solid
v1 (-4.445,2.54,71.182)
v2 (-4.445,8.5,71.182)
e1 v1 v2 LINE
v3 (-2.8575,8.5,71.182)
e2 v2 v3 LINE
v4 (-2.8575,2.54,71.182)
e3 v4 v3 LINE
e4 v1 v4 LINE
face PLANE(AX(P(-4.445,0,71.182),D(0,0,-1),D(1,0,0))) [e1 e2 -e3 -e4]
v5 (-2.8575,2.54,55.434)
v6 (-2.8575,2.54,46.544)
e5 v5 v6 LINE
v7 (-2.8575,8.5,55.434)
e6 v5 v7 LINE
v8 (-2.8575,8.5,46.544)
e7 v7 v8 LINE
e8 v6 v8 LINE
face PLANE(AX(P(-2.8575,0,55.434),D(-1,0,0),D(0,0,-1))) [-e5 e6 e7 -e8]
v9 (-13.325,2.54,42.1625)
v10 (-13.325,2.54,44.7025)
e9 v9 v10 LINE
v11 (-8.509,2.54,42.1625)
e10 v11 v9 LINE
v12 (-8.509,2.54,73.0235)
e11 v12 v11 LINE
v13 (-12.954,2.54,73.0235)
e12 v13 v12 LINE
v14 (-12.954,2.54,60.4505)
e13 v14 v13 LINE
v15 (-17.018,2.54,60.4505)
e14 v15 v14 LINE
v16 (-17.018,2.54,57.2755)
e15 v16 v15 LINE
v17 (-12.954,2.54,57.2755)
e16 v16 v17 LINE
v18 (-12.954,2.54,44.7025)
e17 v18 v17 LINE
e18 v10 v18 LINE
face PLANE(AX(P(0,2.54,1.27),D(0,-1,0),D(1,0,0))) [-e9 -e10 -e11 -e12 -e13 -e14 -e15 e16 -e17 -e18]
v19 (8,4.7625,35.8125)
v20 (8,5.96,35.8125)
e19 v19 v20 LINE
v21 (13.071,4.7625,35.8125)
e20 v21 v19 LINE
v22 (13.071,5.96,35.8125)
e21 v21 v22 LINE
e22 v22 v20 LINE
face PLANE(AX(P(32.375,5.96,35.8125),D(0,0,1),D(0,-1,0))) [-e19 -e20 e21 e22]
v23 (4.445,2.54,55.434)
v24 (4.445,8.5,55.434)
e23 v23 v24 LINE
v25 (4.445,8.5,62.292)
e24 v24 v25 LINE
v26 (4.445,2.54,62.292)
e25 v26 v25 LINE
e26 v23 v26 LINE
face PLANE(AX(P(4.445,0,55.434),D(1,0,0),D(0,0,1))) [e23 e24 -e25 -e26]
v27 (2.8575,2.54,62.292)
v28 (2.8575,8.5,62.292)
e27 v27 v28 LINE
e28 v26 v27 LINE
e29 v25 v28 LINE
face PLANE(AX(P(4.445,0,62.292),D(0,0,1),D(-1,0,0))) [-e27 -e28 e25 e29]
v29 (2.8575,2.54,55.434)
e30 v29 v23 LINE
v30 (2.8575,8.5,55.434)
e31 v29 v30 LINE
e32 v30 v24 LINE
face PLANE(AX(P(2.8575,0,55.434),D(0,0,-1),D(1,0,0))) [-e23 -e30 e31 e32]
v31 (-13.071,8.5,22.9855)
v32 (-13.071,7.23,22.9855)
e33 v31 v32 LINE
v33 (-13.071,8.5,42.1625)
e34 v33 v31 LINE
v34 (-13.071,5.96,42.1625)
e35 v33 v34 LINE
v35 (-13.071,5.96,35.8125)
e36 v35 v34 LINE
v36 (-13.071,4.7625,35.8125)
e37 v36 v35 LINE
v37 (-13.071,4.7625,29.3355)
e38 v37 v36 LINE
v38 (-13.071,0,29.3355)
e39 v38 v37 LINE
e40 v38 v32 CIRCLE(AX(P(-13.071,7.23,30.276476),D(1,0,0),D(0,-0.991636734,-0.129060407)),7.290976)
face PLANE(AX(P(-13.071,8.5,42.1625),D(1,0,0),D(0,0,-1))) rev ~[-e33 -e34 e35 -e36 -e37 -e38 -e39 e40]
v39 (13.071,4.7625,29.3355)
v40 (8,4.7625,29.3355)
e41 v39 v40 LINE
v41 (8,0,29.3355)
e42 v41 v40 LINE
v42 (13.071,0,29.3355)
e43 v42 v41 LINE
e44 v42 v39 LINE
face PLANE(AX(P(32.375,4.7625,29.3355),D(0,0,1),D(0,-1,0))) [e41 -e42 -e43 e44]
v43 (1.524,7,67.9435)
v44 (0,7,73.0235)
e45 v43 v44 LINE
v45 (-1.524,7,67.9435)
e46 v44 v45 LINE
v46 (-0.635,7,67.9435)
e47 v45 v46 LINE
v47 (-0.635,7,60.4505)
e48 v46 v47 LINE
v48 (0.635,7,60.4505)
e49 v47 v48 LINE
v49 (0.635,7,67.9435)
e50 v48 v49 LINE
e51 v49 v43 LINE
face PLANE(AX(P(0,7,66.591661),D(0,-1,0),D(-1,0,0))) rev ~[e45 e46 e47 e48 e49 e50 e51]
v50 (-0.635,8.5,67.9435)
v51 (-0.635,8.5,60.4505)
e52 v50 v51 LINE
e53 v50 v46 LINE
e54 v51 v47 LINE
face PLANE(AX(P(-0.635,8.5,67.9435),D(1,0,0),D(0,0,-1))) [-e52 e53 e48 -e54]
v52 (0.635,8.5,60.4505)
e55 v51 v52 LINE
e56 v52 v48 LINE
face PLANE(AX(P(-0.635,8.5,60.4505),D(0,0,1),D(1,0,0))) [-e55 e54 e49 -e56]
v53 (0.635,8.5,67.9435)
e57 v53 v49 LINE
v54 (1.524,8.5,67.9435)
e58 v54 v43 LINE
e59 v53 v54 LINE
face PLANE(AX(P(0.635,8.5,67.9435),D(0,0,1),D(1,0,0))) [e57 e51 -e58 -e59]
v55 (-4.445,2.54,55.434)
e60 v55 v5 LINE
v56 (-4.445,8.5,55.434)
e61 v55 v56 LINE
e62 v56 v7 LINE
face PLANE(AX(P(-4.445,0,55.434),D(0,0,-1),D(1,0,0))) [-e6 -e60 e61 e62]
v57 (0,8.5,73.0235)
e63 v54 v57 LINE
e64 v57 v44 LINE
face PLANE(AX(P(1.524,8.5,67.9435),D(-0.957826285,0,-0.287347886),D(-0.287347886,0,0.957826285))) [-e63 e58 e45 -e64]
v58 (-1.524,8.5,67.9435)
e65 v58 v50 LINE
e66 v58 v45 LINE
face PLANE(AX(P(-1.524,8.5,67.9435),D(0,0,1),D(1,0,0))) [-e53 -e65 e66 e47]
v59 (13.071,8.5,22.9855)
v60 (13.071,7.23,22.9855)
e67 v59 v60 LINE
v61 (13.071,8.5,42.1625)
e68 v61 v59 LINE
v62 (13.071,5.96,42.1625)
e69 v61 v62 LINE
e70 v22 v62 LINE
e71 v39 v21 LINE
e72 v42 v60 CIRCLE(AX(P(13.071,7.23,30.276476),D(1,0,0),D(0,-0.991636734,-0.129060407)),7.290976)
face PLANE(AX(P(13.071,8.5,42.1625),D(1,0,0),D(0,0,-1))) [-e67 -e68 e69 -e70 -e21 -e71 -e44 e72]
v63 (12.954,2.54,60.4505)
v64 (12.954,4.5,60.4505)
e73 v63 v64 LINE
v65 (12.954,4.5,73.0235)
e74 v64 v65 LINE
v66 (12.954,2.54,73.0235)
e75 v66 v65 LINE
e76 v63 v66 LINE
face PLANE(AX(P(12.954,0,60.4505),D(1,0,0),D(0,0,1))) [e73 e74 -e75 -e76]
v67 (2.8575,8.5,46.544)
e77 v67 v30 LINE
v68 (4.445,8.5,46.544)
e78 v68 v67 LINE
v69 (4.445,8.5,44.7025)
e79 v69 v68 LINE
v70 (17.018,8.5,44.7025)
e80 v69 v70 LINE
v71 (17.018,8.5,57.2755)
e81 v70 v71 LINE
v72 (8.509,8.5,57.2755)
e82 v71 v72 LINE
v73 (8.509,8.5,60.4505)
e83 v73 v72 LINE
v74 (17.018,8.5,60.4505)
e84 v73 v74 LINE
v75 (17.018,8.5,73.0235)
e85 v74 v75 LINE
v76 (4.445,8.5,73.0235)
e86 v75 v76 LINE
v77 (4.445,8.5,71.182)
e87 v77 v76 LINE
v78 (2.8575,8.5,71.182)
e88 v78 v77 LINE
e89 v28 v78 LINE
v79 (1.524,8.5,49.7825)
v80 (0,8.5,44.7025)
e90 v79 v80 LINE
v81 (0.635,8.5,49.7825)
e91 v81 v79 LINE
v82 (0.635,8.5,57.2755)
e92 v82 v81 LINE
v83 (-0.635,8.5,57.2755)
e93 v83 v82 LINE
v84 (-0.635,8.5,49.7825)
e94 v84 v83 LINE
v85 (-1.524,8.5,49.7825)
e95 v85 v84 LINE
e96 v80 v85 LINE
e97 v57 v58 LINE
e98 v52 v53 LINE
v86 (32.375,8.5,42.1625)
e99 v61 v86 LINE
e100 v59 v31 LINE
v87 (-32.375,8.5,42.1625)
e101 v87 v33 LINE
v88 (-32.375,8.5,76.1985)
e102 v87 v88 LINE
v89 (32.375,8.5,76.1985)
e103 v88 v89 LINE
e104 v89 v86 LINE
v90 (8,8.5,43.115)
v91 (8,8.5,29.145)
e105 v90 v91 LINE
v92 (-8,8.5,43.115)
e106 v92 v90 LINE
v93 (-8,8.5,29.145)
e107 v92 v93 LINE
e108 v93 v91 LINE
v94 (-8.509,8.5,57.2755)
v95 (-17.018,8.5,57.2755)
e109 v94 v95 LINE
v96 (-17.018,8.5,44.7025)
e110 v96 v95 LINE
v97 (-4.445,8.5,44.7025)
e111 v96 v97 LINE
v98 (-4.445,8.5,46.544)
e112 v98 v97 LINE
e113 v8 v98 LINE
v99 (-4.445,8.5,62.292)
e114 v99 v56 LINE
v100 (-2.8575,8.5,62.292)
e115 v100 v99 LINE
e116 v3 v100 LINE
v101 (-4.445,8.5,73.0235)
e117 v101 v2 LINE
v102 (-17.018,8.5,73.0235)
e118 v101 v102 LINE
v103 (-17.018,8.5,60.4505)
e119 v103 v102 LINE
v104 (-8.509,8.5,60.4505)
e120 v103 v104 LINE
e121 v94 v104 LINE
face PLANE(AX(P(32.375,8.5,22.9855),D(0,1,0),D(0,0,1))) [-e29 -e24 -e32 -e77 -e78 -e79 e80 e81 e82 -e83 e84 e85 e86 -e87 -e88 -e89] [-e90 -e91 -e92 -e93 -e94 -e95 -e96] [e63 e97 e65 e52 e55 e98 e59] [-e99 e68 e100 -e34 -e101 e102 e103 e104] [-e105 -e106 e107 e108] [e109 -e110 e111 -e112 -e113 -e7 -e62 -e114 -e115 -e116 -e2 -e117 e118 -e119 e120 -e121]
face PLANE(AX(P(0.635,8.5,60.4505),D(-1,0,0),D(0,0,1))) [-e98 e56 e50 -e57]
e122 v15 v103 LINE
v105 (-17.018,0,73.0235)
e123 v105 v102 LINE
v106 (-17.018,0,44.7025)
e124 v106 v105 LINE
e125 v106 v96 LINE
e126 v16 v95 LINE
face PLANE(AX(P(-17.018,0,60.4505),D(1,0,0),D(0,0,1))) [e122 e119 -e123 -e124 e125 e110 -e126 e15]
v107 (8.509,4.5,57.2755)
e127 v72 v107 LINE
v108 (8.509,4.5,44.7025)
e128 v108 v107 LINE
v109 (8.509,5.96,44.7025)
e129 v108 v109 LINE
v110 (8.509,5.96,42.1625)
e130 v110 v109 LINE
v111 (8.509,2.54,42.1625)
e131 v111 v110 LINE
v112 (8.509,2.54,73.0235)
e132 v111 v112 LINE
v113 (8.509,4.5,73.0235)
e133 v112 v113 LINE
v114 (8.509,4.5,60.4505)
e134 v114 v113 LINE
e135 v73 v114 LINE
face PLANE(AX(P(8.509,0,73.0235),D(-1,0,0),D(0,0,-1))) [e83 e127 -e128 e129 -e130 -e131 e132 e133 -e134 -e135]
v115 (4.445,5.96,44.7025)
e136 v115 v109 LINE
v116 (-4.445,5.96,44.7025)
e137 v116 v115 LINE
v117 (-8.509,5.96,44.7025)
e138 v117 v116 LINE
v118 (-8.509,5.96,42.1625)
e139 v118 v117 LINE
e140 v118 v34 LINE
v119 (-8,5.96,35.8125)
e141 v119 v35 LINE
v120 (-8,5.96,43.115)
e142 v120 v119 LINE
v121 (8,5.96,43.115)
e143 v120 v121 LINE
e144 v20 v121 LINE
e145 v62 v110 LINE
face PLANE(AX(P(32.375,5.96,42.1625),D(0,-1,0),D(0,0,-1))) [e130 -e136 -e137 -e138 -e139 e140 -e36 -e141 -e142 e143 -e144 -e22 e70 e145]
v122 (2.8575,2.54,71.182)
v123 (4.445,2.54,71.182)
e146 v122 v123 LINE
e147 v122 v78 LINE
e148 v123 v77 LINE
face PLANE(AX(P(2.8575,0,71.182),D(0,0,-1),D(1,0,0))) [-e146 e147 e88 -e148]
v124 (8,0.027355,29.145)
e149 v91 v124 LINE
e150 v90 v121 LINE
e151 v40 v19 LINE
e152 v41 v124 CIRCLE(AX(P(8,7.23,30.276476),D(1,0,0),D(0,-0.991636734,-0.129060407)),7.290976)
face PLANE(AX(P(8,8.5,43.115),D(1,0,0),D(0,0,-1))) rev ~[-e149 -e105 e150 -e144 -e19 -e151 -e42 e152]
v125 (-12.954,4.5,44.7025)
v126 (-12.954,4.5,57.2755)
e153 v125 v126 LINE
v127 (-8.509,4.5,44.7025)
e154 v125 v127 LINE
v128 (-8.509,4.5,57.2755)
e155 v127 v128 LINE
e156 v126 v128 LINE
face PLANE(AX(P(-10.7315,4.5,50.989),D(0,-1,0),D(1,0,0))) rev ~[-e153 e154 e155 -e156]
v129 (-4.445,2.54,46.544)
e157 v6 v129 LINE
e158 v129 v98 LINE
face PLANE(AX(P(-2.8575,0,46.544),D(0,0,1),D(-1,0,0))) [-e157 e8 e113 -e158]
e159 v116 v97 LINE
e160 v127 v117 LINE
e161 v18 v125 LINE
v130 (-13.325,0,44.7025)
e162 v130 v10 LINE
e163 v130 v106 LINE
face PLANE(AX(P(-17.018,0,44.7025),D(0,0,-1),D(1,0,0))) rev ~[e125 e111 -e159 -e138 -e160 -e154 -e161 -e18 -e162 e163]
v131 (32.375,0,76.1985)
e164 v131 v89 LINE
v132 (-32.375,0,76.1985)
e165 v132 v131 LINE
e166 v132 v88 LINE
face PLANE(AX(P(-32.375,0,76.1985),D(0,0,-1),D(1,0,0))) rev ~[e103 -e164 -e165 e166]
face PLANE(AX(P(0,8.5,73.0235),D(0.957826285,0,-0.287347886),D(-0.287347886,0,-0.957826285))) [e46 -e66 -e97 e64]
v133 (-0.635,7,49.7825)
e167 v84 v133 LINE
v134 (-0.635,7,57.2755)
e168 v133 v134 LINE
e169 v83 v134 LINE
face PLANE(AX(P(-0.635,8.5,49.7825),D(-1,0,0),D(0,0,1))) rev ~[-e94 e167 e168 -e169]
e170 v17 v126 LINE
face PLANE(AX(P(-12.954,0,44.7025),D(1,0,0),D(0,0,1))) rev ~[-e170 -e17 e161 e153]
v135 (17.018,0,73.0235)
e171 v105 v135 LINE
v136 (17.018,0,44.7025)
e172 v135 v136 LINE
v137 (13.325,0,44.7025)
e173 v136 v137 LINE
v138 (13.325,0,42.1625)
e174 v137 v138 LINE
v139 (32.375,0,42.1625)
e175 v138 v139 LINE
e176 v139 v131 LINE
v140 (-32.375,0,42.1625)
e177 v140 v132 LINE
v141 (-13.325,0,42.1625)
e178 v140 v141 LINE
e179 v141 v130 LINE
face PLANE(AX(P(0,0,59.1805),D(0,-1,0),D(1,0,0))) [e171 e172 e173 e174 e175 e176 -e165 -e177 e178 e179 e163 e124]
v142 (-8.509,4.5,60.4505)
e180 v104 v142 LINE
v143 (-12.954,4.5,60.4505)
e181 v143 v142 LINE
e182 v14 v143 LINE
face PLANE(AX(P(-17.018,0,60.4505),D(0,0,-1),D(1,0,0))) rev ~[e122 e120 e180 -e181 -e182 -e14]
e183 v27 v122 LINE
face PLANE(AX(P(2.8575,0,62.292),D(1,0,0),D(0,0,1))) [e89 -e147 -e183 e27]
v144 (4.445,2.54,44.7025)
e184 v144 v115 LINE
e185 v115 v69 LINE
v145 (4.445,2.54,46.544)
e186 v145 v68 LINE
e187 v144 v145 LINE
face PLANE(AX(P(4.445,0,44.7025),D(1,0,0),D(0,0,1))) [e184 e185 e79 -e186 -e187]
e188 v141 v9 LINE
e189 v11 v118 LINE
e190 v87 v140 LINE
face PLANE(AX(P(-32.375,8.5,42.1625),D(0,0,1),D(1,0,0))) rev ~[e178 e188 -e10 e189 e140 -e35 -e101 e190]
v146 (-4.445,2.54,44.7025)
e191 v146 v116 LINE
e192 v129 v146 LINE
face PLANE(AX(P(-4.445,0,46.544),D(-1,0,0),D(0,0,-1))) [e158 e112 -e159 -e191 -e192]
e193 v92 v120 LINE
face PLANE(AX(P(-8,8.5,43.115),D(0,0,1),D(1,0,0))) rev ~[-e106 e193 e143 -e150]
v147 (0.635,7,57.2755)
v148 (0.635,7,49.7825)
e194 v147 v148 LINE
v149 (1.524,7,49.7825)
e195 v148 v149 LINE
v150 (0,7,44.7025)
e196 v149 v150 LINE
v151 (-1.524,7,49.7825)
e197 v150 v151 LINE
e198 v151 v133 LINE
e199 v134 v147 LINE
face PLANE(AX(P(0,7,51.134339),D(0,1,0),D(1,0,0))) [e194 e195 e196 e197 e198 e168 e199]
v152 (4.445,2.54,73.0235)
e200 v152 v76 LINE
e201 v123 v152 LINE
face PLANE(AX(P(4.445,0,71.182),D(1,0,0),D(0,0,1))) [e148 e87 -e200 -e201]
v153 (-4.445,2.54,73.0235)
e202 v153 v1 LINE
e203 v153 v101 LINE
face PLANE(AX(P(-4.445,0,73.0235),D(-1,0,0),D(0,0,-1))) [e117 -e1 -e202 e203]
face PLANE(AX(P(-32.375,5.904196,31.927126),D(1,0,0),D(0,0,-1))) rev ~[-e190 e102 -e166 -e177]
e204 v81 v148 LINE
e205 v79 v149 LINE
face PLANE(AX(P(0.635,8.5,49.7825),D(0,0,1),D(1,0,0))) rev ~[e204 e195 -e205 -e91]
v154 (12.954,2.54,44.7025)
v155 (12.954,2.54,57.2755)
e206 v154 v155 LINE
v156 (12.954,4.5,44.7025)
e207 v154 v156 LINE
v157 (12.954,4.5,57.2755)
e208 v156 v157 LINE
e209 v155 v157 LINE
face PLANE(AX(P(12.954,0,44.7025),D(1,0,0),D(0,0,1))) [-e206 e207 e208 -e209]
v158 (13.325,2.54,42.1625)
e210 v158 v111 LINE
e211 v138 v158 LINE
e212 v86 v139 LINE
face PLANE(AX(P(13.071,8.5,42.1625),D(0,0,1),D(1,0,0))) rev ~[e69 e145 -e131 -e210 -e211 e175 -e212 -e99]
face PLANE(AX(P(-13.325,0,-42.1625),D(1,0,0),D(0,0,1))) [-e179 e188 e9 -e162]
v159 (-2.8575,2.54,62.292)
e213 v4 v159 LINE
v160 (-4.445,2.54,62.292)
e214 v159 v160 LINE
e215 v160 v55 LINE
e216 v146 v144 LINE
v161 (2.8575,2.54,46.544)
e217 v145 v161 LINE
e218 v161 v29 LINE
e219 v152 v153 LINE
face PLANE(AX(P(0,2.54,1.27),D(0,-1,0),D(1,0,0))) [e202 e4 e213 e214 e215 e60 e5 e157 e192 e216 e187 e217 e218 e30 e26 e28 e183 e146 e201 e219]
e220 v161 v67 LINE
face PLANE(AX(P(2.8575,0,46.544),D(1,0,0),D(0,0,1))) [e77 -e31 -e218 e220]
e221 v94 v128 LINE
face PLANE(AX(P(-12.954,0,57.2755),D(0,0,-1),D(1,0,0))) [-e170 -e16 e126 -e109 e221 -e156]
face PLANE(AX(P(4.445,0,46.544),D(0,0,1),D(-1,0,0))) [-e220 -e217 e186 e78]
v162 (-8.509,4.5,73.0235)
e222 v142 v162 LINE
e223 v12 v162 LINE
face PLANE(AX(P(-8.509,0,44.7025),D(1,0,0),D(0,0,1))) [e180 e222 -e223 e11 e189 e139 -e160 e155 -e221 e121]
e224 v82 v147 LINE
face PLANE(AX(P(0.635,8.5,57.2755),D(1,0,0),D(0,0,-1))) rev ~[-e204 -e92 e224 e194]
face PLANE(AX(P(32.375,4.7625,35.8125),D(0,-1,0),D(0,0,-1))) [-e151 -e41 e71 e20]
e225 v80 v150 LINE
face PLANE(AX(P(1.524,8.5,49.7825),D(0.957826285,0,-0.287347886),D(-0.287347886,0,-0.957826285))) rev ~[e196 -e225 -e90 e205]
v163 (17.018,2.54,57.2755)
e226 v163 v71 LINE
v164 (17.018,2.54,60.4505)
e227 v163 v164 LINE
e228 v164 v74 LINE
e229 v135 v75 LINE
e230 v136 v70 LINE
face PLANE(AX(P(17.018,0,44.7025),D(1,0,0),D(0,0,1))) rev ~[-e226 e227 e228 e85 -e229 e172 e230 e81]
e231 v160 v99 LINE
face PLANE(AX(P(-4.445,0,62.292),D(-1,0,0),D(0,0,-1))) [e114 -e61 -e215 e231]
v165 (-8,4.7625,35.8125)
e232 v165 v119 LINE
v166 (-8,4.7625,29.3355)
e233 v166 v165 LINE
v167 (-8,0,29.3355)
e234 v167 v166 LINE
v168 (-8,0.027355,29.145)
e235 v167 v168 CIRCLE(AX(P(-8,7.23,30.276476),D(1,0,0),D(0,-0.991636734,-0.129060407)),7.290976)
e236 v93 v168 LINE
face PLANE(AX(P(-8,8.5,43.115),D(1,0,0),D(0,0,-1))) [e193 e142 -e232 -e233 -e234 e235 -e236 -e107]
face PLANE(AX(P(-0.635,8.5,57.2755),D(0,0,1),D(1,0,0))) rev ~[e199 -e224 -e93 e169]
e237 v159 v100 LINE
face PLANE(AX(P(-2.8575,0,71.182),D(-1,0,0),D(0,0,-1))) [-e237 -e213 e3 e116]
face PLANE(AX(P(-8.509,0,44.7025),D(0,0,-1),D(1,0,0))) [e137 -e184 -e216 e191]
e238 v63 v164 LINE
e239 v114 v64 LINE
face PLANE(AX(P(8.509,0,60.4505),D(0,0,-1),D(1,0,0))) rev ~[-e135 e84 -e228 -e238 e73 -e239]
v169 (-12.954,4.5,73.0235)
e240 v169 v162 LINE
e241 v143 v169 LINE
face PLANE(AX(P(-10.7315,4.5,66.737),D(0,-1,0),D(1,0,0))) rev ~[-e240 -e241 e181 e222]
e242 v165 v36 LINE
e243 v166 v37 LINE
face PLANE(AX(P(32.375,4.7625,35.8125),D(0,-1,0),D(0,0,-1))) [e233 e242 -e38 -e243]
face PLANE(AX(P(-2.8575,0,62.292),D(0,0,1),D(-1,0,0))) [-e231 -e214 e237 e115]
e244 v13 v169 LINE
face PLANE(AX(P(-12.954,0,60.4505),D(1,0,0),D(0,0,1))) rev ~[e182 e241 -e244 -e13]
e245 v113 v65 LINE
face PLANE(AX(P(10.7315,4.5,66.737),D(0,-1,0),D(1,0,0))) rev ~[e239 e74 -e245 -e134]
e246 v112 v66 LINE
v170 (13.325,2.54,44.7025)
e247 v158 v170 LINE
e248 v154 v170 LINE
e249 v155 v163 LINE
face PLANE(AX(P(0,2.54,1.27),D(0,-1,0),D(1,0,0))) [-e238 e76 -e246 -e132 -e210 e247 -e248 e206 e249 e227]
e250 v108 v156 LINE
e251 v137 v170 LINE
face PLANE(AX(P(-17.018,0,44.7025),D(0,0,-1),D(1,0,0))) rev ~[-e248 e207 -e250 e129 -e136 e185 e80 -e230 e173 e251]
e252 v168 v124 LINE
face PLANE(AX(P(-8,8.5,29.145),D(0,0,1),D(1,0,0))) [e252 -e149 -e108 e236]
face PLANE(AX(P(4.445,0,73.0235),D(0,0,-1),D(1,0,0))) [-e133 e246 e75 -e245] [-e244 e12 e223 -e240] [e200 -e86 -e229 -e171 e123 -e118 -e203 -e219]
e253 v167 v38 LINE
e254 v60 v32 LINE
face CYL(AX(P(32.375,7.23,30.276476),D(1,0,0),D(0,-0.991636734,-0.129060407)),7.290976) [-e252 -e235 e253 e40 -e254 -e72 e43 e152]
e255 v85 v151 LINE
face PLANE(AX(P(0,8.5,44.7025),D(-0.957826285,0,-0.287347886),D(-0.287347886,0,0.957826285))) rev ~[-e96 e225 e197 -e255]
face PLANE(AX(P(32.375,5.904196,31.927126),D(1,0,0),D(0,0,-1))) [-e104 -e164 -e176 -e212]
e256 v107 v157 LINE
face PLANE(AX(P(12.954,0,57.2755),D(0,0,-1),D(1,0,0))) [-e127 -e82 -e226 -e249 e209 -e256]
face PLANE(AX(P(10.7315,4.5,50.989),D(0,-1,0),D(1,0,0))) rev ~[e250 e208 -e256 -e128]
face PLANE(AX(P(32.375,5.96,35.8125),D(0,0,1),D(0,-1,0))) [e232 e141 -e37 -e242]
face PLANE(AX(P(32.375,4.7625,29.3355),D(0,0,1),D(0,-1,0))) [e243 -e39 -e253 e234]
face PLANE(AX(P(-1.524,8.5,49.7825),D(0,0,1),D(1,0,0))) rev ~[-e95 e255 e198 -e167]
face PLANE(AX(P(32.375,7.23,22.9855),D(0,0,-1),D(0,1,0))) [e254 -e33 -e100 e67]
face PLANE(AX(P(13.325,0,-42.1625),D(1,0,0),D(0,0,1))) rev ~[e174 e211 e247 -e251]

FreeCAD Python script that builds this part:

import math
import FreeCAD as App
import Part
import Sketcher
from FreeCAD import Vector
Q = App.Units.Quantity


def add_polygon(sketch, points):
    """Adds a closed chain of lines whose ends are joined by coincident constraints."""
    first, n = sketch.GeometryCount, len(points)
    for a, b in zip(points, points[1:] + points[:1]):
        sketch.addGeometry(Part.LineSegment(App.Vector(*a, 0), App.Vector(*b, 0)), False)
    for i in range(n):
        sketch.addConstraint(Sketcher.Constraint("Coincident", first + i, 2, first + (i + 1) % n, 1))

doc = App.newDocument("Part")
params = doc.addObject("Spreadsheet::Sheet", "Params")
for row, (alias, value) in enumerate([
    ("pad1_length", "1 in"),
    ("sketch2_width", "0.21 in"),
    ("sketch2_height", "0.75 in"),
    ("sketch2_width2", "0.235 in"),
    ("sketch3_width", "0.8125 in"),
    ("pad2_length", "0.25 in"),
    ("sketch6_width", "0.16 in"),
    ("sketch6_height", "1.34 in"),
    ("sketch6_height2", "0.35 in"),
    ("sketch6_height3", "0.27 in"),
    ("sketch6_width2", "0.0625 in"),
    ("pad3_length", "8.5 mm"),
    ("sketch7_width", "0.175 in"),
    ("sketch7_height", "0.495 in"),
    ("pocket4_length", "4 mm"),
    ("sketch8_width", "0.35 in"),
    ("sketch8_height", "0.27 in"),
    ("sketch8_width2", "0.175 in"),
    ("sketch8_width3", "0.0625 in"),
    ("sketch8_height2", "0.495 in"),
    ("pocket5_length", "0.1 in"),
    ("sketch9_width", "0.335 in"),
    ("sketch9_height", "0.125 in"),
    ("pocket6_length", "0.1 in"),
    ("sketch10_width", "0.05 in"),
    ("sketch10_width2", "0.035 in"),
    ("sketch10_height", "0.295 in"),
    ("pocket7_length", "1.5 mm"),
    ("sketch12_width", "0.1 in"),
    ("sketch12_width2", "0.05 in"),
    ("sketch12_height", "0.25 in"),
    ("sketch12_width3", "0.1875 in"),
    ("sketch12_height2", "0.755 in"),
    ("pad4_length", "64.75 mm"),
    ("sketch13_width", "0.76 in"),
    ("sketch13_height", "0.55 in"),
    ("sketch13_height2", "0.755 in"),
    ("sketch14_height", "0.1 in"),
    ("sketch14_width", "0.67 in"),
    ("pocket10_length", "5.96 mm"),
], start=1):
    params.set(f"A{row}", alias)
    params.set(f"B{row}", "=" + value)
    params.setAlias(f"B{row}", alias)

body = doc.addObject("PartDesign::Body", "Body")

sketch1 = body.newObject("Sketcher::SketchObject", "Sketch")
sketch1.AttachmentSupport = (doc.getObject("XZ_Plane"), [""])
sketch1.MapMode = "FlatFace"
add_polygon(sketch1, [(-32.4, -42.2), (-32.4, 42.2), (32.4, 42.2), (32.4, -42.2)])
sketch1.addGeometry(Part.Circle(Vector(-29, 38.8, 0), Vector(0, 0, 1), 1.4), False)
sketch1.addGeometry(Part.Circle(Vector(29, 38.8, 0), Vector(0, 0, 1), 1.4), False)
sketch1.addGeometry(Part.Circle(Vector(-29, -10.2, 0), Vector(0, 0, 1), 1.4), False)
sketch1.addGeometry(Part.Circle(Vector(29, -10.2, 0), Vector(0, 0, 1), 1.4), False)
sketch1.addConstraint([
    Sketcher.Constraint("Vertical", 0),
    Sketcher.Constraint("Horizontal", 1),
    Sketcher.Constraint("Vertical", 2),
    Sketcher.Constraint("Horizontal", 3),
    Sketcher.Constraint("Equal", 4, 5),
    Sketcher.Constraint("Equal", 5, 6),
    Sketcher.Constraint("Equal", 6, 7),
    Sketcher.Constraint("Symmetric", 0, 2, 2, 2, -1, 1),
    Sketcher.Constraint("Symmetric", 4, 3, 5, 3, -2),
    Sketcher.Constraint("Symmetric", 6, 3, 7, 3, -2),
    Sketcher.Constraint("Vertical", 4, 3, 6, 3),
    Sketcher.Constraint("Diameter", 4, Q("2.7 mm")),
    Sketcher.Constraint("DistanceX", 1, 1, 1, 2, Q("64.75 mm")),
    Sketcher.Constraint("DistanceY", 0, 1, 0, 2, Q("84.325 mm")),
    Sketcher.Constraint("DistanceX", 4, 3, -1, 1, Q("29 mm")),
    Sketcher.Constraint("DistanceY", -1, 1, 4, 3, Q("38.7875 mm")),
    Sketcher.Constraint("DistanceY", 6, 3, -1, 1, Q("10.2125 mm")),
])
pad1 = body.newObject("PartDesign::Pad", "Pad")
pad1.Profile = sketch1
pad1.setExpression("Length", "Params.pad1_length")
pad1.Reversed = True

sketch2 = body.newObject("Sketcher::SketchObject", "Sketch001")
sketch2.AttachmentSupport = (doc.getObject("YZ_Plane"), [""])
sketch2.MapMode = "FlatFace"
sketch2.AttachmentOffset = App.Placement(Vector(0, 0, 32.375), App.Rotation())
add_polygon(sketch2, [(18, -42), (19, -23), (13, -23), (13, -42)])
sketch2.addConstraint([
    Sketcher.Constraint("Horizontal", 1),
    Sketcher.Constraint("Vertical", 2),
    Sketcher.Constraint("Horizontal", 3),
    Sketcher.Constraint("DistanceX", 3, 1, 3, 2, Q("0.21 in")),
    Sketcher.Constraint("DistanceY", 2, 2, 2, 1, Q("0.75 in")),
    Sketcher.Constraint("DistanceX", -1, 1, 1, 2, Q("0.5 in")),
    Sketcher.Constraint("DistanceX", 1, 2, 1, 1, Q("0.235 in")),
    Sketcher.Constraint("DistanceY", 0, 2, -1, 1, Q("23.1125 mm")),
])
sketch2.setExpression("Constraints[7]", "Params.sketch2_width")
sketch2.setExpression("Constraints[8]", "Params.sketch2_height")
sketch2.setExpression("Constraints[10]", "Params.sketch2_width2")
pocket1 = body.newObject("PartDesign::Pocket", "Pocket")
pocket1.Profile = sketch2
pocket1.Type = "ThroughAll"

sketch3 = body.newObject("Sketcher::SketchObject", "Sketch002")
sketch3.AttachmentSupport = (doc.getObject("YZ_Plane"), [""])
sketch3.MapMode = "FlatFace"
sketch3.AttachmentOffset = App.Placement(Vector(0, 0, 32.375), App.Rotation())
add_polygon(sketch3, [(25, 42), (5, 42), (5, -17), (25, -17)])
sketch3.addConstraint([
    Sketcher.Constraint("Horizontal", 0),
    Sketcher.Constraint("Vertical", 1),
    Sketcher.Constraint("Horizontal", 2),
    Sketcher.Constraint("Vertical", 3),
    Sketcher.Constraint("DistanceX", -1, 1, 2, 2, Q("1 in")),
    Sketcher.Constraint("DistanceX", 0, 2, 0, 1, Q("0.8125 in")),
    Sketcher.Constraint("DistanceY", 1, 2, 1, 1, Q("58.925 mm")),
    Sketcher.Constraint("DistanceY", -1, 1, 0, 2, Q("42.1625 mm")),
])
sketch3.setExpression("Constraints[9]", "Params.sketch3_width")
pocket2 = body.newObject("PartDesign::Pocket", "Pocket001")
pocket2.Profile = sketch3
pocket2.Type = "ThroughAll"

sketch4 = body.newObject("Sketcher::SketchObject", "Sketch003")
sketch4.AttachmentSupport = (doc.getObject("XZ_Plane"), [""])
sketch4.MapMode = "FlatFace"
sketch4.AttachmentOffset = App.Placement(Vector(0, 0, -0.1875 * 25.4), App.Rotation())
add_polygon(sketch4, [(25.6, 35.4), (25.6, 42.2), (32.4, 42.2), (32.4, 35.4)])
sketch4.addGeometry(Part.Circle(Vector(29, 38.8, 0), Vector(0, 0, 1), 1.4), False)
add_polygon(sketch4, [(-32.4, 35.4), (-32.4, 42.2), (-25.6, 42.2), (-25.6, 35.4)])
sketch4.addGeometry(Part.Circle(Vector(-29, 38.8, 0), Vector(0, 0, 1), 1.4), False)
add_polygon(sketch4, [(-32.4, -6.8), (-25.6, -6.8), (-25.6, -16.8), (-32.4, -16.8)])
sketch4.addGeometry(Part.Circle(Vector(-29, -10.2, 0), Vector(0, 0, 1), 1.4), False)
add_polygon(sketch4, [(25.6, -6.8), (32.4, -6.8), (32.4, -16.8), (25.6, -16.8)])
sketch4.addGeometry(Part.Circle(Vector(29, -10.2, 0), Vector(0, 0, 1), 1.4), False)
sketch4.addConstraint([
    Sketcher.Constraint("Vertical", 0),
    Sketcher.Constraint("Horizontal", 1),
    Sketcher.Constraint("Vertical", 2),
    Sketcher.Constraint("Horizontal", 3),
    Sketcher.Constraint("Vertical", 5),
    Sketcher.Constraint("Horizontal", 6),
    Sketcher.Constraint("Vertical", 7),
    Sketcher.Constraint("Horizontal", 8),
    Sketcher.Constraint("Horizontal", 10),
    Sketcher.Constraint("Vertical", 11),
    Sketcher.Constraint("Horizontal", 12),
    Sketcher.Constraint("Vertical", 13),
    Sketcher.Constraint("Horizontal", 15),
    Sketcher.Constraint("Vertical", 16),
    Sketcher.Constraint("Horizontal", 17),
    Sketcher.Constraint("Vertical", 18),
    Sketcher.Constraint("Equal", 4, 9),
    Sketcher.Constraint("Equal", 9, 14),
    Sketcher.Constraint("Equal", 14, 19),
    Sketcher.Constraint("Symmetric", 4, 3, 9, 3, -2),
    Sketcher.Constraint("Symmetric", 14, 3, 19, 3, -2),
    Sketcher.Constraint("Symmetric", 1, 2, 5, 2, -2),
    Sketcher.Constraint("Symmetric", 3, 2, 7, 2, -2),
    Sketcher.Constraint("Symmetric", 13, 2, 15, 2, -2),
    Sketcher.Constraint("Symmetric", 11, 2, 17, 2, -2),
    Sketcher.Constraint("Vertical", 9, 3, 14, 3),
    Sketcher.Constraint("Vertical", 7, 2, 10, 2),
    Sketcher.Constraint("Vertical", 8, 2, 12, 2),
    Sketcher.Constraint("Equal", 17, 0),
    Sketcher.Constraint("Diameter", 4, Q("2.7 mm")),
    Sketcher.Constraint("DistanceX", 1, 1, 1, 2, Q("6.75 mm")),
    Sketcher.Constraint("DistanceY", 11, 2, 11, 1, Q("9.925 mm")),
    Sketcher.Constraint("DistanceX", -1, 1, 4, 3, Q("29 mm")),
    Sketcher.Constraint("DistanceY", -1, 1, 4, 3, Q("38.7875 mm")),
    Sketcher.Constraint("DistanceY", 14, 3, -1, 1, Q("10.2125 mm")),
    Sketcher.Constraint("DistanceX", -1, 1, 0, 2, Q("25.625 mm")),
    Sketcher.Constraint("DistanceY", -1, 1, 0, 2, Q("42.1625 mm")),
    Sketcher.Constraint("DistanceY", 10, 2, -1, 1, Q("6.8375 mm")),
])
pad2 = body.newObject("PartDesign::Pad", "Pad001")
pad2.Profile = sketch4
pad2.setExpression("Length", "Params.pad2_length")
pad2.Reversed = True

sketch5 = body.newObject("Sketcher::SketchObject", "Sketch004")
sketch5.AttachmentSupport = (doc.getObject("XZ_Plane"), [""])
sketch5.MapMode = "FlatFace"
sketch5.AttachmentOffset = App.Placement(Vector(0, 0, -0.5 * 25.4), App.Rotation())
add_polygon(sketch5, [(-13, -29), (-13, 29), (13, 29), (13, -29)])
sketch5.addConstraint([
    Sketcher.Constraint("Vertical", 0),
    Sketcher.Constraint("Horizontal", 1),
    Sketcher.Constraint("Vertical", 2),
    Sketcher.Constraint("Horizontal", 3),
    Sketcher.Constraint("Symmetric", 0, 2, 2, 2, -1, 1),
    Sketcher.Constraint("DistanceX", 1, 1, 1, 2, Q("26.65 mm")),
    Sketcher.Constraint("DistanceY", 0, 1, 0, 2, Q("58.925 mm")),
])
pocket3 = body.newObject("PartDesign::Pocket", "Pocket002")
pocket3.Profile = sketch5
pocket3.Type = "ThroughAll"
pocket3.Midplane = True

sketch6 = body.newObject("Sketcher::SketchObject", "Sketch005")
sketch6.AttachmentSupport = (doc.getObject("XZ_Plane"), [""])
sketch6.MapMode = "FlatFace"
add_polygon(sketch6, [(-32.4, 76.2), (-32.4, 42.2), (32.4, 42.2), (32.4, 76.2)])
add_polygon(sketch6, [(-13, 44.7), (-17, 44.7), (-17, 57.3), (-13, 57.3)])
add_polygon(sketch6, [(17, 44.7), (13, 44.7), (13, 57.3), (17, 57.3)])
add_polygon(sketch6, [(-8.5, 44.7), (-8.5, 73), (-4.4, 73), (-4.4, 71.2), (-2.9, 71.2), (-2.9, 62.3), (-4.4, 62.3), (-4.4, 55.4), (-2.9, 55.4), (-2.9, 46.5), (-4.4, 46.5), (-4.4, 44.7)])
add_polygon(sketch6, [(-13, 60.5), (-17, 60.5), (-17, 73), (-13, 73)])
add_polygon(sketch6, [(4.4, 71.2), (4.4, 73), (8.5, 73), (8.5, 44.7), (4.4, 44.7), (4.4, 46.5), (2.9, 46.5), (2.9, 55.4), (4.4, 55.4), (4.4, 62.3), (2.9, 62.3), (2.9, 71.2)])
add_polygon(sketch6, [(17, 60.5), (13, 60.5), (13, 73), (17, 73)])
sketch6.addConstraint([
    Sketcher.Constraint("Vertical", 0),
    Sketcher.Constraint("Horizontal", 1),
    Sketcher.Constraint("Vertical", 2),
    Sketcher.Constraint("Horizontal", 3),
    Sketcher.Constraint("Horizontal", 4),
    Sketcher.Constraint("Vertical", 5),
    Sketcher.Constraint("Horizontal", 6),
    Sketcher.Constraint("Vertical", 7),
    Sketcher.Constraint("Horizontal", 8),
    Sketcher.Constraint("Vertical", 9),
    Sketcher.Constraint("Horizontal", 10),
    Sketcher.Constraint("Vertical", 11),
    Sketcher.Constraint("Vertical", 12),
    Sketcher.Constraint("Horizontal", 13),
    Sketcher.Constraint("Vertical", 14),
    Sketcher.Constraint("Horizontal", 15),
    Sketcher.Constraint("Vertical", 16),
    Sketcher.Constraint("Horizontal", 17),
    Sketcher.Constraint("Vertical", 18),
    Sketcher.Constraint("Horizontal", 19),
    Sketcher.Constraint("Vertical", 20),
    Sketcher.Constraint("Horizontal", 21),
    Sketcher.Constraint("Vertical", 22),
    Sketcher.Constraint("Horizontal", 23),
    Sketcher.Constraint("Horizontal", 24),
    Sketcher.Constraint("Vertical", 25),
    Sketcher.Constraint("Horizontal", 26),
    Sketcher.Constraint("Vertical", 27),
    Sketcher.Constraint("Vertical", 28),
    Sketcher.Constraint("Horizontal", 29),
    Sketcher.Constraint("Vertical", 30),
    Sketcher.Constraint("Horizontal", 31),
    Sketcher.Constraint("Vertical", 32),
    Sketcher.Constraint("Horizontal", 33),
    Sketcher.Constraint("Vertical", 34),
    Sketcher.Constraint("Horizontal", 35),
    Sketcher.Constraint("Vertical", 36),
    Sketcher.Constraint("Horizontal", 37),
    Sketcher.Constraint("Vertical", 38),
    Sketcher.Constraint("Horizontal", 39),
    Sketcher.Constraint("Horizontal", 40),
    Sketcher.Constraint("Vertical", 41),
    Sketcher.Constraint("Horizontal", 42),
    Sketcher.Constraint("Vertical", 43),
    Sketcher.Constraint("Symmetric", 7, 2, 8, 2, -2),
    Sketcher.Constraint("Symmetric", 5, 2, 10, 2, -2),
    Sketcher.Constraint("Symmetric", 13, 2, 28, 2, -2),
    Sketcher.Constraint("Symmetric", 23, 2, 30, 2, -2),
    Sketcher.Constraint("Symmetric", 21, 2, 32, 2, -2),
    Sketcher.Constraint("Symmetric", 19, 2, 34, 2, -2),
    Sketcher.Constraint("Symmetric", 17, 2, 36, 2, -2),
    Sketcher.Constraint("Symmetric", 15, 2, 38, 2, -2),
    Sketcher.Constraint("Symmetric", 27, 2, 40, 2, -2),
    Sketcher.Constraint("Symmetric", 25, 2, 42, 2, -2),
    Sketcher.Constraint("Horizontal", 11, 2, 22, 2),
    Sketcher.Constraint("Horizontal", 13, 2, 25, 2),
    Sketcher.Constraint("Vertical", 14, 2, 17, 2),
    Sketcher.Constraint("Vertical", 16, 2, 19, 2),
    Sketcher.Constraint("Vertical", 18, 2, 21, 2),
    Sketcher.Constraint("Vertical", 5, 2, 24, 2),
    Sketcher.Constraint("Vertical", 7, 2, 26, 2),
    Sketcher.Constraint("Equal", 10, 13),
    Sketcher.Constraint("Equal", 16, 20),
    Sketcher.Constraint("Equal", 14, 22),
    Sketcher.Constraint("Equal", 11, 25),
    Sketcher.Constraint("DistanceX", 4, 2, 4, 1, Q("0.16 in")),
    Sketcher.Constraint("DistanceY", 0, 2, 0, 1, Q("1.34 in")),
    Sketcher.Constraint("DistanceY", 16, 2, 16, 1, Q("0.35 in")),
    Sketcher.Constraint("DistanceY", 18, 2, 18, 1, Q("0.27 in")),
    Sketcher.Constraint("DistanceY", 0, 2, 4, 2, Q("0.1 in")),
    Sketcher.Constraint("DistanceX", 15, 1, 15, 2, Q("0.0625 in")),
    Sketcher.Constraint("DistanceY", 5, 1, 5, 2, Q("0.495 in")),
    Sketcher.Constraint("DistanceY", 12, 1, 12, 2, Q("1.115 in")),
    Sketcher.Constraint("DistanceX", 4, 2, -1, 1, Q("0.67 in")),
    Sketcher.Constraint("DistanceX", 13, 2, 28, 2, Q("0.35 in")),
    Sketcher.Constraint("DistanceX", 1, 1, 1, 2, Q("64.75 mm")),
    Sketcher.Constraint("DistanceX", 0, 2, -1, 1, Q("32.375 mm")),
    Sketcher.Constraint("DistanceY", -1, 1, 0, 2, Q("42.1625 mm")),
])
sketch6.setExpression("Constraints[109]", "Params.sketch6_width")
sketch6.setExpression("Constraints[110]", "Params.sketch6_height")
sketch6.setExpression("Constraints[111]", "Params.sketch6_height2")
sketch6.setExpression("Constraints[112]", "Params.sketch6_height3")
sketch6.setExpression("Constraints[114]", "Params.sketch6_width2")
pad3 = body.newObject("PartDesign::Pad", "Pad002")
pad3.Profile = sketch6
pad3.setExpression("Length", "Params.pad3_length")
pad3.Reversed = True

sketch7 = body.newObject("Sketcher::SketchObject", "Sketch006")
sketch7.AttachmentSupport = (doc.getObject("XZ_Plane"), [""])
sketch7.MapMode = "FlatFace"
sketch7.AttachmentOffset = App.Placement(Vector(0, 0, -8.5), App.Rotation())
add_polygon(sketch7, [(-13, 57.3), (-13, 44.7), (-8.5, 44.7), (-8.5, 57.3)])
add_polygon(sketch7, [(8.5, 57.3), (8.5, 44.7), (13, 44.7), (13, 57.3)])
add_polygon(sketch7, [(-13, 73), (-13, 60.5), (-8.5, 60.5), (-8.5, 73)])
add_polygon(sketch7, [(8.5, 73), (8.5, 60.5), (13, 60.5), (13, 73)])
sketch7.addConstraint([
    Sketcher.Constraint("Vertical", 0),
    Sketcher.Constraint("Horizontal", 1),
    Sketcher.Constraint("Vertical", 2),
    Sketcher.Constraint("Horizontal", 3),
    Sketcher.Constraint("Vertical", 4),
    Sketcher.Constraint("Horizontal", 5),
    Sketcher.Constraint("Vertical", 6),
    Sketcher.Constraint("Horizontal", 7),
    Sketcher.Constraint("Vertical", 8),
    Sketcher.Constraint("Horizontal", 9),
    Sketcher.Constraint("Vertical", 10),
    Sketcher.Constraint("Horizontal", 11),
    Sketcher.Constraint("Vertical", 12),
    Sketcher.Constraint("Horizontal", 13),
    Sketcher.Constraint("Vertical", 14),
    Sketcher.Constraint("Horizontal", 15),
    Sketcher.Constraint("Symmetric", 1, 2, 4, 2, -2),
    Sketcher.Constraint("Symmetric", 3, 2, 6, 2, -2),
    Sketcher.Constraint("Symmetric", 9, 2, 12, 2, -2),
    Sketcher.Constraint("Symmetric", 11, 2, 14, 2, -2),
    Sketcher.Constraint("Vertical", 3, 2, 8, 2),
    Sketcher.Constraint("Vertical", 2, 2, 9, 2),
    Sketcher.Constraint("Equal", 6, 8),
    Sketcher.Constraint("DistanceX", 1, 1, 1, 2, Q("0.175 in")),
    Sketcher.Constraint("DistanceY", 0, 2, 0, 1, Q("0.495 in")),
    Sketcher.Constraint("DistanceX", 0, 2, -1, 1, Q("0.51 in")),
    Sketcher.Constraint("DistanceY", 0, 2, 8, 2, Q("0.62 in")),
    Sketcher.Constraint("DistanceY", -1, 1, 0, 2, Q("44.7025 mm")),
])
sketch7.setExpression("Constraints[39]", "Params.sketch7_width")
sketch7.setExpression("Constraints[40]", "Params.sketch7_height")
pocket4 = body.newObject("PartDesign::Pocket", "Pocket003")
pocket4.Profile = sketch7
pocket4.setExpression("Length", "Params.pocket4_length")
pocket4.Reversed = True

sketch8 = body.newObject("Sketcher::SketchObject", "Sketch007")
sketch8.AttachmentSupport = (doc.getObject("XZ_Plane"), [""])
sketch8.MapMode = "FlatFace"
add_polygon(sketch8, [(8.5, 57.3), (8.5, 44.7), (13, 44.7), (13, 57.3)])
add_polygon(sketch8, [(-13, 57.3), (-13, 44.7), (-8.5, 44.7), (-8.5, 57.3)])
add_polygon(sketch8, [(8.5, 73), (8.5, 60.5), (13, 60.5), (13, 73)])
add_polygon(sketch8, [(-13, 73), (-13, 60.5), (-8.5, 60.5), (-8.5, 73)])
add_polygon(sketch8, [(-4.4, 46.5), (-4.4, 44.7), (4.4, 44.7), (4.4, 46.5), (2.9, 46.5), (2.9, 55.4), (4.4, 55.4), (4.4, 62.3), (2.9, 62.3), (2.9, 71.2), (4.4, 71.2), (4.4, 73), (-4.4, 73), (-4.4, 71.2), (-2.9, 71.2), (-2.9, 62.3), (-4.4, 62.3), (-4.4, 55.4), (-2.9, 55.4), (-2.9, 46.5)])
sketch8.addConstraint([
    Sketcher.Constraint("Vertical", 0),
    Sketcher.Constraint("Horizontal", 1),
    Sketcher.Constraint("Vertical", 2),
    Sketcher.Constraint("Horizontal", 3),
    Sketcher.Constraint("Vertical", 4),
    Sketcher.Constraint("Horizontal", 5),
    Sketcher.Constraint("Vertical", 6),
    Sketcher.Constraint("Horizontal", 7),
    Sketcher.Constraint("Vertical", 8),
    Sketcher.Constraint("Horizontal", 9),
    Sketcher.Constraint("Vertical", 10),
    Sketcher.Constraint("Horizontal", 11),
    Sketcher.Constraint("Vertical", 12),
    Sketcher.Constraint("Horizontal", 13),
    Sketcher.Constraint("Vertical", 14),
    Sketcher.Constraint("Horizontal", 15),
    Sketcher.Constraint("Vertical", 16),
    Sketcher.Constraint("Horizontal", 17),
    Sketcher.Constraint("Vertical", 18),
    Sketcher.Constraint("Horizontal", 19),
    Sketcher.Constraint("Vertical", 20),
    Sketcher.Constraint("Horizontal", 21),
    Sketcher.Constraint("Vertical", 22),
    Sketcher.Constraint("Horizontal", 23),
    Sketcher.Constraint("Vertical", 24),
    Sketcher.Constraint("Horizontal", 25),
    Sketcher.Constraint("Vertical", 26),
    Sketcher.Constraint("Horizontal", 27),
    Sketcher.Constraint("Vertical", 28),
    Sketcher.Constraint("Horizontal", 29),
    Sketcher.Constraint("Vertical", 30),
    Sketcher.Constraint("Horizontal", 31),
    Sketcher.Constraint("Vertical", 32),
    Sketcher.Constraint("Horizontal", 33),
    Sketcher.Constraint("Vertical", 34),
    Sketcher.Constraint("Horizontal", 35),
    Sketcher.Constraint("Symmetric", 1, 2, 4, 2, -2),
    Sketcher.Constraint("Symmetric", 3, 2, 6, 2, -2),
    Sketcher.Constraint("Symmetric", 9, 2, 12, 2, -2),
    Sketcher.Constraint("Symmetric", 11, 2, 14, 2, -2),
    Sketcher.Constraint("Symmetric", 25, 2, 28, 2, -2),
    Sketcher.Constraint("Symmetric", 23, 2, 30, 2, -2),
    Sketcher.Constraint("Symmetric", 21, 2, 32, 2, -2),
    Sketcher.Constraint("Symmetric", 19, 2, 34, 2, -2),
    Sketcher.Constraint("Horizontal", 5, 2, 16, 2),
    Sketcher.Constraint("Horizontal", 15, 2, 26, 2),
    Sketcher.Constraint("Vertical", 3, 2, 8, 2),
    Sketcher.Constraint("Vertical", 2, 2, 9, 2),
    Sketcher.Constraint("Vertical", 18, 2, 21, 2),
    Sketcher.Constraint("Vertical", 20, 2, 23, 2),
    Sketcher.Constraint("Vertical", 22, 2, 25, 2),
    Sketcher.Constraint("Vertical", 16, 2, 27, 2),
    Sketcher.Constraint("Equal", 6, 8),
    Sketcher.Constraint("Equal", 27, 20),
    Sketcher.Constraint("Equal", 20, 24),
    Sketcher.Constraint("Equal", 18, 26),
    Sketcher.Constraint("DistanceX", 17, 1, 17, 2, Q("0.35 in")),
    Sketcher.Constraint("DistanceY", 22, 1, 22, 2, Q("0.27 in")),
    Sketcher.Constraint("DistanceX", 1, 1, 1, 2, Q("0.175 in")),
    Sketcher.Constraint("DistanceX", 19, 2, 19, 1, Q("0.0625 in")),
    Sketcher.Constraint("DistanceY", 0, 2, 0, 1, Q("0.495 in")),
    Sketcher.Constraint("DistanceX", -1, 1, 1, 2, Q("0.51 in")),
    Sketcher.Constraint("DistanceY", 0, 2, 8, 2, Q("0.62 in")),
    Sketcher.Constraint("DistanceY", -1, 1, 0, 2, Q("44.7025 mm")),
])
sketch8.setExpression("Constraints[92]", "Params.sketch8_width")
sketch8.setExpression("Constraints[93]", "Params.sketch8_height")
sketch8.setExpression("Constraints[94]", "Params.sketch8_width2")
sketch8.setExpression("Constraints[95]", "Params.sketch8_width3")
sketch8.setExpression("Constraints[96]", "Params.sketch8_height2")
pocket5 = body.newObject("PartDesign::Pocket", "Pocket004")
pocket5.Profile = sketch8
pocket5.setExpression("Length", "Params.pocket5_length")

sketch9 = body.newObject("Sketcher::SketchObject", "Sketch008")
sketch9.AttachmentSupport = (doc.getObject("XZ_Plane"), [""])
sketch9.MapMode = "FlatFace"
add_polygon(sketch9, [(-13.3, 44.7), (-13.3, -42.2), (13.3, -42.2), (13.3, 44.7)])
add_polygon(sketch9, [(-17, 60.5), (-17, 57.3), (-8.5, 57.3), (-8.5, 60.5)])
add_polygon(sketch9, [(8.5, 60.5), (8.5, 57.3), (17, 57.3), (17, 60.5)])
sketch9.addConstraint([
    Sketcher.Constraint("Vertical", 0),
    Sketcher.Constraint("Horizontal", 1),
    Sketcher.Constraint("Vertical", 2),
    Sketcher.Constraint("Horizontal", 3),
    Sketcher.Constraint("Vertical", 4),
    Sketcher.Constraint("Horizontal", 5),
    Sketcher.Constraint("Vertical", 6),
    Sketcher.Constraint("Horizontal", 7),
    Sketcher.Constraint("Vertical", 8),
    Sketcher.Constraint("Horizontal", 9),
    Sketcher.Constraint("Vertical", 10),
    Sketcher.Constraint("Horizontal", 11),
    Sketcher.Constraint("Symmetric", 5, 2, 8, 2, -2),
    Sketcher.Constraint("Symmetric", 7, 2, 10, 2, -2),
    Sketcher.Constraint("DistanceX", 5, 1, 5, 2, Q("0.335 in")),
    Sketcher.Constraint("DistanceY", 4, 2, 4, 1, Q("0.125 in")),
    Sketcher.Constraint("DistanceX", 4, 2, -1, 1, Q("0.67 in")),
    Sketcher.Constraint("DistanceY", 3, 2, 6, 2, Q("0.62 in")),
    Sketcher.Constraint("DistanceX", 1, 1, 1, 2, Q("26.65 mm")),
    Sketcher.Constraint("DistanceY", 0, 2, 0, 1, Q("86.865 mm")),
    Sketcher.Constraint("DistanceX", 0, 2, -1, 1, Q("13.325 mm")),
    Sketcher.Constraint("DistanceY", 0, 2, -1, 1, Q("42.1625 mm")),
])
sketch9.setExpression("Constraints[26]", "Params.sketch9_width")
sketch9.setExpression("Constraints[27]", "Params.sketch9_height")
pocket6 = body.newObject("PartDesign::Pocket", "Pocket005")
pocket6.Profile = sketch9
pocket6.setExpression("Length", "Params.pocket6_length")

sketch10 = body.newObject("Sketcher::SketchObject", "Sketch009")
sketch10.AttachmentSupport = (doc.getObject("XZ_Plane"), [""])
sketch10.MapMode = "FlatFace"
sketch10.AttachmentOffset = App.Placement(Vector(0, 0, -8.5), App.Rotation())
add_polygon(sketch10, [(-0.6, 57.3), (0.6, 57.3), (0.6, 49.8), (1.5, 49.8), (0, 44.7), (-1.5, 49.8), (-0.6, 49.8)])
add_polygon(sketch10, [(-0.6, 60.5), (-0.6, 67.9), (-1.5, 67.9), (0, 73), (1.5, 67.9), (0.6, 67.9), (0.6, 60.5)])
sketch10.addConstraint([
    Sketcher.Constraint("Horizontal", 0),
    Sketcher.Constraint("Vertical", 1),
    Sketcher.Constraint("Horizontal", 2),
    Sketcher.Constraint("Horizontal", 5),
    Sketcher.Constraint("Vertical", 6),
    Sketcher.Constraint("Vertical", 7),
    Sketcher.Constraint("Horizontal", 8),
    Sketcher.Constraint("Horizontal", 11),
    Sketcher.Constraint("Vertical", 12),
    Sketcher.Constraint("Horizontal", 13),
    Sketcher.Constraint("Symmetric", 2, 2, 4, 2, -2),
    Sketcher.Constraint("Symmetric", 8, 2, 10, 2, -2),
    Sketcher.Constraint("PointOnObject", 3, 2, -2),
    Sketcher.Constraint("PointOnObject", 9, 2, -2),
    Sketcher.Constraint("Parallel", 3, 9),
    Sketcher.Constraint("Vertical", 6, 2, 7, 2),
    Sketcher.Constraint("Vertical", 4, 2, 8, 2),
    Sketcher.Constraint("Vertical", 1, 2, 11, 2),
    Sketcher.Constraint("Equal", 2, 5),
    Sketcher.Constraint("Equal", 6, 7),
    Sketcher.Constraint("DistanceX", 0, 1, 0, 2, Q("0.05 in")),
    Sketcher.Constraint("DistanceY", 3, 2, 1, 2, Q("0.2 in")),
    Sketcher.Constraint("DistanceX", 2, 1, 2, 2, Q("0.035 in")),
    Sketcher.Constraint("DistanceY", 1, 2, 1, 1, Q("0.295 in")),
    Sketcher.Constraint("DistanceY", 6, 2, 7, 2, Q("0.42 in")),
    Sketcher.Constraint("DistanceY", -1, 1, 0, 2, Q("57.2755 mm")),
])
sketch10.setExpression("Constraints[34]", "Params.sketch10_width")
sketch10.setExpression("Constraints[36]", "Params.sketch10_width2")
sketch10.setExpression("Constraints[37]", "Params.sketch10_height")
pocket7 = body.newObject("PartDesign::Pocket", "Pocket006")
pocket7.Profile = sketch10
pocket7.setExpression("Length", "Params.pocket7_length")
pocket7.Reversed = True

sketch11 = body.newObject("Sketcher::SketchObject", "Sketch010")
sketch11.AttachmentSupport = (doc.getObject("XZ_Plane"), [""])
sketch11.MapMode = "FlatFace"
add_polygon(sketch11, [(-32, 42), (-32, -42), (32, -42), (32, 42)])
sketch11.addConstraint([
    Sketcher.Constraint("Vertical", 0),
    Sketcher.Constraint("Horizontal", 1),
    Sketcher.Constraint("Vertical", 2),
    Sketcher.Constraint("Horizontal", 3),
    Sketcher.Constraint("Symmetric", 0, 2, 2, 2, -1, 1),
    Sketcher.Constraint("DistanceX", 1, 1, 1, 2, Q("64.75 mm")),
    Sketcher.Constraint("DistanceY", 0, 2, 0, 1, Q("84.325 mm")),
])
pocket8 = body.newObject("PartDesign::Pocket", "Pocket007")
pocket8.Profile = sketch11
pocket8.Type = "ThroughAll"

sketch12 = body.newObject("Sketcher::SketchObject", "Sketch011")
sketch12.AttachmentSupport = (doc.getObject("YZ_Plane"), [""])
sketch12.MapMode = "FlatFace"
sketch12.AttachmentOffset = App.Placement(Vector(0, 0, 32.375), App.Rotation())
sketch12.addGeometry([
    Part.LineSegment(Vector(8.5, 23, 0), Vector(8.5, 42.2, 0)),
    Part.LineSegment(Vector(8.5, 42.2, 0), Vector(6, 42.2, 0)),
    Part.LineSegment(Vector(6, 42.2, 0), Vector(6, 35.8, 0)),
    Part.LineSegment(Vector(6, 35.8, 0), Vector(4.8, 35.8, 0)),
    Part.LineSegment(Vector(4.8, 35.8, 0), Vector(4.8, 29.3, 0)),
    Part.LineSegment(Vector(4.8, 29.3, 0), Vector(0, 29.3, 0)),
    Part.ArcOfCircle(Part.Circle(Vector(7.2, 30.3, 0), Vector(0, 0, 1), 7.3), math.radians(-173), math.radians(-90)),
    Part.LineSegment(Vector(7.2, 23, 0), Vector(8.5, 23, 0)),
], False)
sketch12.addConstraint([
    Sketcher.Constraint("Coincident", 0, 2, 1, 1),
    Sketcher.Constraint("Coincident", 1, 2, 2, 1),
    Sketcher.Constraint("Coincident", 2, 2, 3, 1),
    Sketcher.Constraint("Coincident", 3, 2, 4, 1),
    Sketcher.Constraint("Coincident", 4, 2, 5, 1),
    Sketcher.Constraint("Coincident", 5, 2, 6, 1),
    Sketcher.Constraint("Tangent", 6, 2, 7, 1),
    Sketcher.Constraint("Coincident", 7, 2, 0, 1),
    Sketcher.Constraint("Vertical", 0),
    Sketcher.Constraint("Horizontal", 1),
    Sketcher.Constraint("Vertical", 2),
    Sketcher.Constraint("Horizontal", 3),
    Sketcher.Constraint("Vertical", 4),
    Sketcher.Constraint("Horizontal", 5),
    Sketcher.Constraint("Horizontal", 7),
    Sketcher.Constraint("PointOnObject", 5, 2, -2),
    Sketcher.Constraint("DistanceX", 1, 2, 1, 1, Q("0.1 in")),
    Sketcher.Constraint("DistanceX", 7, 1, 7, 2, Q("0.05 in")),
    Sketcher.Constraint("DistanceY", 2, 2, 2, 1, Q("0.25 in")),
    Sketcher.Constraint("DistanceX", 5, 2, 5, 1, Q("0.1875 in")),
    Sketcher.Constraint("DistanceY", 0, 1, 0, 2, Q("0.755 in")),
    Sketcher.Constraint("DistanceY", 4, 2, 4, 1, Q("0.255 in")),
    Sketcher.Constraint("DistanceX", 3, 2, 3, 1, Q("1.1975 mm")),
    Sketcher.Constraint("DistanceY", -1, 1, 0, 2, Q("42.1625 mm")),
])
sketch12.setExpression("Constraints[16]", "Params.sketch12_width")
sketch12.setExpression("Constraints[17]", "Params.sketch12_width2")
sketch12.setExpression("Constraints[18]", "Params.sketch12_height")
sketch12.setExpression("Constraints[19]", "Params.sketch12_width3")
sketch12.setExpression("Constraints[20]", "Params.sketch12_height2")
pad4 = body.newObject("PartDesign::Pad", "Pad003")
pad4.Profile = sketch12
pad4.setExpression("Length", "Params.pad4_length")
pad4.Reversed = True

sketch13 = body.newObject("Sketcher::SketchObject", "Sketch012")
sketch13.AttachmentSupport = (doc.getObject("XZ_Plane"), [""])
sketch13.MapMode = "FlatFace"
sketch13.AttachmentOffset = App.Placement(Vector(0, 0, -8.5), App.Rotation())
add_polygon(sketch13, [(-32, 23), (-32, 42), (-13, 42), (-13, 23)])
add_polygon(sketch13, [(-8, 29), (-8, 43), (8, 43), (8, 29)])
add_polygon(sketch13, [(13, 23), (13, 42), (32, 42), (32, 23)])
sketch13.addConstraint([
    Sketcher.Constraint("Vertical", 0),
    Sketcher.Constraint("Horizontal", 1),
    Sketcher.Constraint("Vertical", 2),
    Sketcher.Constraint("Horizontal", 3),
    Sketcher.Constraint("Vertical", 4),
    Sketcher.Constraint("Horizontal", 5),
    Sketcher.Constraint("Vertical", 6),
    Sketcher.Constraint("Horizontal", 7),
    Sketcher.Constraint("Vertical", 8),
    Sketcher.Constraint("Horizontal", 9),
    Sketcher.Constraint("Vertical", 10),
    Sketcher.Constraint("Horizontal", 11),
    Sketcher.Constraint("Symmetric", 1, 2, 8, 2, -2),
    Sketcher.Constraint("Symmetric", 3, 2, 10, 2, -2),
    Sketcher.Constraint("DistanceX", 1, 1, 1, 2, Q("0.76 in")),
    Sketcher.Constraint("DistanceY", 4, 1, 4, 2, Q("0.55 in")),
    Sketcher.Constraint("DistanceY", 0, 1, 0, 2, Q("0.755 in")),
    Sketcher.Constraint("DistanceX", 5, 1, 5, 2, Q("16 mm")),
    Sketcher.Constraint("DistanceY", 1, 2, 4, 2, Q("0.0375 in")),
    Sketcher.Constraint("DistanceX", 0, 2, -1, 1, Q("32.375 mm")),
    Sketcher.Constraint("DistanceY", -1, 1, 0, 2, Q("42.1625 mm")),
    Sketcher.Constraint("DistanceX", 4, 2, -1, 1, Q("8 mm")),
])
sketch13.setExpression("Constraints[26]", "Params.sketch13_width")
sketch13.setExpression("Constraints[27]", "Params.sketch13_height")
sketch13.setExpression("Constraints[28]", "Params.sketch13_height2")
pocket9 = body.newObject("PartDesign::Pocket", "Pocket008")
pocket9.Profile = sketch13
pocket9.Type = "ThroughAll"
pocket9.Reversed = True

sketch14 = body.newObject("Sketcher::SketchObject", "Sketch013")
sketch14.AttachmentSupport = (doc.getObject("XZ_Plane"), [""])
sketch14.MapMode = "FlatFace"
add_polygon(sketch14, [(-8.5, 44.7), (-8.5, 42.2), (8.5, 42.2), (8.5, 44.7)])
sketch14.addConstraint([
    Sketcher.Constraint("Vertical", 0),
    Sketcher.Constraint("Horizontal", 1),
    Sketcher.Constraint("Vertical", 2),
    Sketcher.Constraint("Horizontal", 3),
    Sketcher.Constraint("DistanceY", 0, 2, 0, 1, Q("0.1 in")),
    Sketcher.Constraint("DistanceX", 1, 1, 1, 2, Q("0.67 in")),
    Sketcher.Constraint("DistanceX", 0, 2, -1, 1, Q("0.335 in")),
    Sketcher.Constraint("DistanceY", -1, 1, 0, 2, Q("42.1625 mm")),
])
sketch14.setExpression("Constraints[8]", "Params.sketch14_height")
sketch14.setExpression("Constraints[9]", "Params.sketch14_width")
pocket10 = body.newObject("PartDesign::Pocket", "Pocket009")
pocket10.Profile = sketch14
pocket10.setExpression("Length", "Params.pocket10_length")

doc.recompute()
